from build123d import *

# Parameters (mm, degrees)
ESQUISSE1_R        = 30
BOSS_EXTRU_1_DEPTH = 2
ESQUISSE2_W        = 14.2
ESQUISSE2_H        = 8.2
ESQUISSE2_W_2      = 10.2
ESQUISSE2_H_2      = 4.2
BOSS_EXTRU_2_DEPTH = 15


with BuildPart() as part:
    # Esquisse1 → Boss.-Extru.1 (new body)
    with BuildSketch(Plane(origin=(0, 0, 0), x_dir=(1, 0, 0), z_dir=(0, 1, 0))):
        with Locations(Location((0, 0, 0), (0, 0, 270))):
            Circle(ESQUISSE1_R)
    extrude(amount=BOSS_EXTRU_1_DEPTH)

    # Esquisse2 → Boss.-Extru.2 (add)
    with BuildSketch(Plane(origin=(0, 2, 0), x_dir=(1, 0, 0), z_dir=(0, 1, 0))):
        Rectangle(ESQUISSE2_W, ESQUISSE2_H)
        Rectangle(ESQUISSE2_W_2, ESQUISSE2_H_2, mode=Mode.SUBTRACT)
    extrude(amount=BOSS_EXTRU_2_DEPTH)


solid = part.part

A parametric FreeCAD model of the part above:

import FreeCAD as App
import Part
import Sketcher
from FreeCAD import Vector

doc = App.newDocument("Part")
body = doc.addObject("PartDesign::Body", "Body")

# Sketch on XZ plane
sketch1 = body.newObject("Sketcher::SketchObject", "Sketch")
sketch1.AttachmentSupport = (doc.getObject("XZ_Plane"), [""])
sketch1.MapMode = "FlatFace"
sketch1.addGeometry(Part.Circle(Vector(0, 0, 0), Vector(0, 0, 1), 30), False)
sketch1.addConstraint(Sketcher.Constraint("Coincident", 0, 3, -1, 1))
sketch1.addConstraint(Sketcher.Constraint("Diameter", 0, 60.0))
pad1 = body.newObject("PartDesign::Pad", "Pad")
pad1.Profile = sketch1
pad1.Length = 2
pad1.Reversed = True

# Sketch on XZ plane
sketch2 = body.newObject("Sketcher::SketchObject", "Sketch001")
sketch2.AttachmentSupport = (doc.getObject("XZ_Plane"), [""])
sketch2.MapMode = "FlatFace"
sketch2.AttachmentOffset = App.Placement(Vector(0, 0, -2), App.Rotation())
sketch2.addGeometry(Part.LineSegment(Vector(-7.1, -4.1, 0), Vector(-7.1, 4.1, 0)), False)
sketch2.addGeometry(Part.LineSegment(Vector(-7.1, 4.1, 0), Vector(7.1, 4.1, 0)), False)
sketch2.addGeometry(Part.LineSegment(Vector(7.1, 4.1, 0), Vector(7.1, -4.1, 0)), False)
sketch2.addGeometry(Part.LineSegment(Vector(7.1, -4.1, 0), Vector(-7.1, -4.1, 0)), False)
sketch2.addGeometry(Part.LineSegment(Vector(5.1, 2.1, 0), Vector(-5.1, 2.1, 0)), False)
sketch2.addGeometry(Part.LineSegment(Vector(-5.1, 2.1, 0), Vector(-5.1, -2.1, 0)), False)
sketch2.addGeometry(Part.LineSegment(Vector(-5.1, -2.1, 0), Vector(5.1, -2.1, 0)), False)
sketch2.addGeometry(Part.LineSegment(Vector(5.1, -2.1, 0), Vector(5.1, 2.1, 0)), False)
sketch2.addConstraint(Sketcher.Constraint("Coincident", 0, 2, 1, 1))
sketch2.addConstraint(Sketcher.Constraint("Coincident", 1, 2, 2, 1))
sketch2.addConstraint(Sketcher.Constraint("Coincident", 2, 2, 3, 1))
sketch2.addConstraint(Sketcher.Constraint("Coincident", 3, 2, 0, 1))
sketch2.addConstraint(Sketcher.Constraint("Coincident", 4, 2, 5, 1))
sketch2.addConstraint(Sketcher.Constraint("Coincident", 5, 2, 6, 1))
sketch2.addConstraint(Sketcher.Constraint("Coincident", 6, 2, 7, 1))
sketch2.addConstraint(Sketcher.Constraint("Coincident", 7, 2, 4, 1))
sketch2.addConstraint(Sketcher.Constraint("Vertical", 0))
sketch2.addConstraint(Sketcher.Constraint("Horizontal", 1))
sketch2.addConstraint(Sketcher.Constraint("Vertical", 2))
sketch2.addConstraint(Sketcher.Constraint("Horizontal", 3))
sketch2.addConstraint(Sketcher.Constraint("Horizontal", 4))
sketch2.addConstraint(Sketcher.Constraint("Vertical", 5))
sketch2.addConstraint(Sketcher.Constraint("Horizontal", 6))
sketch2.addConstraint(Sketcher.Constraint("Vertical", 7))
sketch2.addConstraint(Sketcher.Constraint("Symmetric", 0, 2, 2, 2, -1, 1))
sketch2.addConstraint(Sketcher.Constraint("Symmetric", 4, 2, 6, 2, -1, 1))
sketch2.addConstraint(Sketcher.Constraint("DistanceX", 1, 1, 1, 2, 14.2))
sketch2.addConstraint(Sketcher.Constraint("DistanceX", 4, 2, 4, 1, 10.2))
sketch2.addConstraint(Sketcher.Constraint("DistanceY", 0, 1, 0, 2, 8.2))
sketch2.addConstraint(Sketcher.Constraint("DistanceY", 5, 2, 5, 1, 4.2))
pad2 = body.newObject("PartDesign::Pad", "Pad001")
pad2.Profile = sketch2
pad2.Length = 15
pad2.Reversed = True

doc.recompute()
